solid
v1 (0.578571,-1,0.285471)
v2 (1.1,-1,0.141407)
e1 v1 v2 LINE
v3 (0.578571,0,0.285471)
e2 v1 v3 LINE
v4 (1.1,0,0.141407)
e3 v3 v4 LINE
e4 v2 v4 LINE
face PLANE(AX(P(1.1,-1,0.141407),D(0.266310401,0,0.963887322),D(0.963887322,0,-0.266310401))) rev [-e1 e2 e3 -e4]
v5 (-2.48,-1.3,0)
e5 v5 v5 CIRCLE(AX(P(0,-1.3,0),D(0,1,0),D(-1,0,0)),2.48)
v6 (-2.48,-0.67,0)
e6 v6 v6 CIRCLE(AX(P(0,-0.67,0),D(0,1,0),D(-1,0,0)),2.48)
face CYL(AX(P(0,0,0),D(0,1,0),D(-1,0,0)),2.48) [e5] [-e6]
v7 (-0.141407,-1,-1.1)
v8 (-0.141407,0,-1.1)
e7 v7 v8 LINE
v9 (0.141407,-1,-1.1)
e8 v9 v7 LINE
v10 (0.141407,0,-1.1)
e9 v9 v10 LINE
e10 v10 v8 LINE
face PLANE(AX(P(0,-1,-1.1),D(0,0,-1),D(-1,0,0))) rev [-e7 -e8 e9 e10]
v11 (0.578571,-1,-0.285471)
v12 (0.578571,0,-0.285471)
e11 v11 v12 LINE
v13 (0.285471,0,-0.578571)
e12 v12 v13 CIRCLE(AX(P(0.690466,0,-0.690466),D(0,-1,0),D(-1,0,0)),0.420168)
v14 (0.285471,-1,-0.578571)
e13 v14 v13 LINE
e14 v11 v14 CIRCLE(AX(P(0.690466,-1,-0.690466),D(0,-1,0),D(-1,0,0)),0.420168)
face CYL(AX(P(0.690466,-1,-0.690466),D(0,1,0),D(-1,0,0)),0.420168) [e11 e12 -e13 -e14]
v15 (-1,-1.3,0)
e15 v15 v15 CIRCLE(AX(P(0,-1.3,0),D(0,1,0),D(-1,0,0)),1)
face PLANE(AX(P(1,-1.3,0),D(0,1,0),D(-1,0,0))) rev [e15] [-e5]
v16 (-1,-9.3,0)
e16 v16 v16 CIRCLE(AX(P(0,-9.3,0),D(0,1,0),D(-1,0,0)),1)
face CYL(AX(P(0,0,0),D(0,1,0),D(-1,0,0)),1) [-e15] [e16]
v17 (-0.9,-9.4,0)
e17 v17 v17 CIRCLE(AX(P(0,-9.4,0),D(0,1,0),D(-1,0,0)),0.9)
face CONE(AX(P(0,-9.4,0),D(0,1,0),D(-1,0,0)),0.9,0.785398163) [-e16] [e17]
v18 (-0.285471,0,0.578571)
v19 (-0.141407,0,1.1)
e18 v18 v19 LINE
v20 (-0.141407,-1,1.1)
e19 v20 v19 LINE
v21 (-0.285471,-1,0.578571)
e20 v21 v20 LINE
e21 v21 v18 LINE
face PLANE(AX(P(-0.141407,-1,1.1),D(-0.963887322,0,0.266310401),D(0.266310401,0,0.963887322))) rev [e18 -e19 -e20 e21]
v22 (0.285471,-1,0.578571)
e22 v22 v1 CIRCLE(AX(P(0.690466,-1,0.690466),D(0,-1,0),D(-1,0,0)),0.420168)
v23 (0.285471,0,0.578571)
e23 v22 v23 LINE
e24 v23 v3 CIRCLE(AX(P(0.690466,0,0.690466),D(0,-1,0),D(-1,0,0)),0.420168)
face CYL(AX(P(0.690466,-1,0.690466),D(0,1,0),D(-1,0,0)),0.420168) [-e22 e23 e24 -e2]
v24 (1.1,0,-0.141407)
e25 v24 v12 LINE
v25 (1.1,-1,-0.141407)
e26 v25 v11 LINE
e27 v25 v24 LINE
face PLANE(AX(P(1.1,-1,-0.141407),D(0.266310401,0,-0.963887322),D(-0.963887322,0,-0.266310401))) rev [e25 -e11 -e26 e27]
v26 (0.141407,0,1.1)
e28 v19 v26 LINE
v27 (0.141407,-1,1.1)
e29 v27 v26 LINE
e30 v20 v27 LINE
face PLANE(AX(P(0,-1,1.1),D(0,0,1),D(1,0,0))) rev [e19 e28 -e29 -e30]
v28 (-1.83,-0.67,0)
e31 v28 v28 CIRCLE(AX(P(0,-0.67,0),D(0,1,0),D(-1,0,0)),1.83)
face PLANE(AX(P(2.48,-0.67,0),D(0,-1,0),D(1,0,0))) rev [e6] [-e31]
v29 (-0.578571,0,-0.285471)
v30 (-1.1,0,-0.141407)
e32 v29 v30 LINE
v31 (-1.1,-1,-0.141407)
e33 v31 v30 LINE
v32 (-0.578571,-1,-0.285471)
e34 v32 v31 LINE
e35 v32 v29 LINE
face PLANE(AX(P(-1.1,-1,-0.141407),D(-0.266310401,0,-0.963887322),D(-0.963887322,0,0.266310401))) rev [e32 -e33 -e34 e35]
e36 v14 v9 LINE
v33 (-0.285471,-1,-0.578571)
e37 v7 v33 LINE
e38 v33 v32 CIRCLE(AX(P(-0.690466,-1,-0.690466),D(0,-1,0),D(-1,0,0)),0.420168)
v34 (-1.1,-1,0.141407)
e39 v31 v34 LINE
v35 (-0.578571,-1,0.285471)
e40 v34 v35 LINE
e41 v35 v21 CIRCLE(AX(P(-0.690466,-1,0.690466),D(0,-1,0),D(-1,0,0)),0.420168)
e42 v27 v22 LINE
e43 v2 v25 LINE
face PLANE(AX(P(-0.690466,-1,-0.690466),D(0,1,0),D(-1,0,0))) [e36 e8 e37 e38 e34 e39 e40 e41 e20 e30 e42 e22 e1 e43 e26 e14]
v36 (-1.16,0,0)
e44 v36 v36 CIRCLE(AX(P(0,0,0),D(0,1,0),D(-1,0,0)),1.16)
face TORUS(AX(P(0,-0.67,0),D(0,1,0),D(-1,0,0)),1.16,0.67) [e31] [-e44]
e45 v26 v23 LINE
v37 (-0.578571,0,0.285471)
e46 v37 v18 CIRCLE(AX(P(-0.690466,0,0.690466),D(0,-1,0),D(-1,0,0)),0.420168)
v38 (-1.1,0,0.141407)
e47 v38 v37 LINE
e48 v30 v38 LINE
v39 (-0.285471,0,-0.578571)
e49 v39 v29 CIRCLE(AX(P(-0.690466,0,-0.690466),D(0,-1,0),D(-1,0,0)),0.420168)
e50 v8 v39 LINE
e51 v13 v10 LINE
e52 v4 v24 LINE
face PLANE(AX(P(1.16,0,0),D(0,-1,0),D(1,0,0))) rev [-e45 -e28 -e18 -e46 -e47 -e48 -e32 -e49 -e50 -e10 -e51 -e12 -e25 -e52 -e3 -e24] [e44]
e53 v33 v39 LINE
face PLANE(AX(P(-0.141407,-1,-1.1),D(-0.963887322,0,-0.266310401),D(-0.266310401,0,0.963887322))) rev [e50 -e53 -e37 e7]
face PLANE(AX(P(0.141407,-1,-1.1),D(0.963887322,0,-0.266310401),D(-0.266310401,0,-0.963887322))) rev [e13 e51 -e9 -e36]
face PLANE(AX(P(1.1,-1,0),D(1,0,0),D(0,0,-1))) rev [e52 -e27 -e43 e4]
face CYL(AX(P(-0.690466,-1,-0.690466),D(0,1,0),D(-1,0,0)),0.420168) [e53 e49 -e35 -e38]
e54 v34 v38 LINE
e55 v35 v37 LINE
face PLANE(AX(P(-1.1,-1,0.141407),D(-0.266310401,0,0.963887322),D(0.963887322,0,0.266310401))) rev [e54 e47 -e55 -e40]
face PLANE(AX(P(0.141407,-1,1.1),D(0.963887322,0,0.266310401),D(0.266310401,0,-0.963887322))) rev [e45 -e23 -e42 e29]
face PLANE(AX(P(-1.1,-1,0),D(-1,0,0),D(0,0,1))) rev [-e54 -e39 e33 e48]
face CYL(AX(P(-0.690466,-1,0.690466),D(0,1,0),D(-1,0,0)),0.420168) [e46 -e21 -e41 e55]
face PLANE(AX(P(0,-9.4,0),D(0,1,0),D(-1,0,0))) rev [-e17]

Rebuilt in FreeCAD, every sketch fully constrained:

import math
import FreeCAD as App
import Part
import Sketcher

V = App.Vector
Q = App.Units.Quantity

doc = App.newDocument("Part")
body = doc.addObject("PartDesign::Body", "Body")

# Sketch on XY plane
sketch1 = body.newObject("Sketcher::SketchObject", "Sketch")
sketch1.AttachmentSupport = (doc.getObject("XY_Plane"), [""])
sketch1.MapMode = "FlatFace"
sketch1.addGeometry(Part.LineSegment(V(0, -9.4, 0), V(0.9, -9.4, 0)), False)
sketch1.addGeometry(Part.LineSegment(V(0.9, -9.4, 0), V(1, -9.3, 0)), False)
sketch1.addGeometry(Part.LineSegment(V(1, -9.3, 0), V(1, -1.3, 0)), False)
sketch1.addGeometry(Part.LineSegment(V(1, -1.3, 0), V(2.48, -1.3, 0)), False)
sketch1.addGeometry(Part.LineSegment(V(2.48, -1.3, 0), V(2.48, -0.67, 0)), False)
sketch1.addGeometry(Part.LineSegment(V(2.48, -0.67, 0), V(1.83, -0.67, 0)), False)
sketch1.addGeometry(Part.ArcOfCircle(Part.Circle(V(1.16, -0.67, 0), V(0, 0, 1), 0.67), math.radians(0), math.radians(90)), False)
sketch1.addGeometry(Part.LineSegment(V(1.16, 0, 0), V(0, 0, 0)), False)
sketch1.addGeometry(Part.LineSegment(V(0, 0, 0), V(0, -9.4, 0)), False)
sketch1.addConstraint(Sketcher.Constraint("Coincident", 0, 2, 1, 1))
sketch1.addConstraint(Sketcher.Constraint("Coincident", 1, 2, 2, 1))
sketch1.addConstraint(Sketcher.Constraint("Coincident", 2, 2, 3, 1))
sketch1.addConstraint(Sketcher.Constraint("Coincident", 3, 2, 4, 1))
sketch1.addConstraint(Sketcher.Constraint("Coincident", 4, 2, 5, 1))
sketch1.addConstraint(Sketcher.Constraint("Coincident", 5, 2, 6, 1))
sketch1.addConstraint(Sketcher.Constraint("Tangent", 6, 2, 7, 1))
sketch1.addConstraint(Sketcher.Constraint("Coincident", 7, 2, 8, 1))
sketch1.addConstraint(Sketcher.Constraint("Coincident", 8, 2, 0, 1))
sketch1.addConstraint(Sketcher.Constraint("Horizontal", 0))
sketch1.addConstraint(Sketcher.Constraint("Vertical", 2))
sketch1.addConstraint(Sketcher.Constraint("Horizontal", 3))
sketch1.addConstraint(Sketcher.Constraint("Vertical", 4))
sketch1.addConstraint(Sketcher.Constraint("Horizontal", 5))
sketch1.addConstraint(Sketcher.Constraint("Horizontal", 7))
sketch1.addConstraint(Sketcher.Constraint("Vertical", 8))
sketch1.addConstraint(Sketcher.Constraint("Coincident", 7, 2, -1, 1))
sketch1.addConstraint(Sketcher.Constraint("Horizontal", 6, 3, 4, 2))
sketch1.addConstraint(Sketcher.Constraint("DistanceY", 2, 1, 2, 2, Q("8 mm")))
sketch1.addConstraint(Sketcher.Constraint("Angle", 1, Q("45 deg")))
sketch1.addConstraint(Sketcher.Constraint("Radius", 6, Q("0.67 mm")))
sketch1.addConstraint(Sketcher.Constraint("DistanceX", 0, 1, 0, 2, Q("0.9 mm")))
sketch1.addConstraint(Sketcher.Constraint("DistanceY", 8, 2, 8, 1, Q("9.4 mm")))
sketch1.addConstraint(Sketcher.Constraint("DistanceX", -1, 1, 1, 2, Q("1 mm")))
sketch1.addConstraint(Sketcher.Constraint("DistanceX", 3, 1, 3, 2, Q("1.48 mm")))
sketch1.addConstraint(Sketcher.Constraint("DistanceX", 5, 2, 5, 1, Q("0.65 mm")))
revolution = body.newObject("PartDesign::Revolution", "Revolution")
revolution.Profile = sketch1
revolution.ReferenceAxis = (sketch1, ["V_Axis"])
revolution.Angle = 360

# Sketch on XZ plane
sketch2 = body.newObject("Sketcher::SketchObject", "Sketch001")
sketch2.AttachmentSupport = (doc.getObject("XZ_Plane"), [""])
sketch2.MapMode = "FlatFace"
sketch2.addGeometry(Part.LineSegment(V(0.285471, -0.578571, 0), V(0.141407, -1.1, 0)), False)
sketch2.addGeometry(Part.LineSegment(V(0.141407, -1.1, 0), V(-0.141407, -1.1, 0)), False)
sketch2.addGeometry(Part.LineSegment(V(-0.141407, -1.1, 0), V(-0.285471, -0.578571, 0)), False)
sketch2.addGeometry(Part.ArcOfCircle(Part.Circle(V(-0.690466, -0.690466, 0), V(0, 0, 1), 0.420168), math.radians(15.444832), math.radians(74.555168)), False)
sketch2.addGeometry(Part.LineSegment(V(-0.578571, -0.285471, 0), V(-1.1, -0.141407, 0)), False)
sketch2.addGeometry(Part.LineSegment(V(-1.1, -0.141407, 0), V(-1.1, 0.141407, 0)), False)
sketch2.addGeometry(Part.LineSegment(V(-1.1, 0.141407, 0), V(-0.578571, 0.285471, 0)), False)
sketch2.addGeometry(Part.ArcOfCircle(Part.Circle(V(-0.690466, 0.690466, 0), V(0, 0, 1), 0.420168), math.radians(-74.555168), math.radians(-15.444832)), False)
sketch2.addGeometry(Part.LineSegment(V(-0.285471, 0.578571, 0), V(-0.141407, 1.1, 0)), False)
sketch2.addGeometry(Part.LineSegment(V(-0.141407, 1.1, 0), V(0.141407, 1.1, 0)), False)
sketch2.addGeometry(Part.LineSegment(V(0.141407, 1.1, 0), V(0.285471, 0.578571, 0)), False)
sketch2.addGeometry(Part.ArcOfCircle(Part.Circle(V(0.690466, 0.690466, 0), V(0, 0, 1), 0.420168), math.radians(-164.555168), math.radians(-105.444832)), False)
sketch2.addGeometry(Part.LineSegment(V(0.578571, 0.285471, 0), V(1.1, 0.141407, 0)), False)
sketch2.addGeometry(Part.LineSegment(V(1.1, 0.141407, 0), V(1.1, -0.141407, 0)), False)
sketch2.addGeometry(Part.LineSegment(V(1.1, -0.141407, 0), V(0.578571, -0.285471, 0)), False)
sketch2.addGeometry(Part.ArcOfCircle(Part.Circle(V(0.690466, -0.690466, 0), V(0, 0, 1), 0.420168), math.radians(105.444832), math.radians(164.555168)), False)
sketch2.addConstraint(Sketcher.Constraint("Coincident", 0, 2, 1, 1))
sketch2.addConstraint(Sketcher.Constraint("Coincident", 1, 2, 2, 1))
sketch2.addConstraint(Sketcher.Constraint("Tangent", 2, 2, 3, 1))
sketch2.addConstraint(Sketcher.Constraint("Tangent", 3, 2, 4, 1))
sketch2.addConstraint(Sketcher.Constraint("Coincident", 4, 2, 5, 1))
sketch2.addConstraint(Sketcher.Constraint("Coincident", 5, 2, 6, 1))
sketch2.addConstraint(Sketcher.Constraint("Tangent", 6, 2, 7, 1))
sketch2.addConstraint(Sketcher.Constraint("Tangent", 7, 2, 8, 1))
sketch2.addConstraint(Sketcher.Constraint("Coincident", 8, 2, 9, 1))
sketch2.addConstraint(Sketcher.Constraint("Coincident", 9, 2, 10, 1))
sketch2.addConstraint(Sketcher.Constraint("Tangent", 10, 2, 11, 1))
sketch2.addConstraint(Sketcher.Constraint("Tangent", 11, 2, 12, 1))
sketch2.addConstraint(Sketcher.Constraint("Coincident", 12, 2, 13, 1))
sketch2.addConstraint(Sketcher.Constraint("Coincident", 13, 2, 14, 1))
sketch2.addConstraint(Sketcher.Constraint("Tangent", 14, 2, 15, 1))
sketch2.addConstraint(Sketcher.Constraint("Tangent", 15, 2, 0, 1))
sketch2.addConstraint(Sketcher.Constraint("Horizontal", 1))
sketch2.addConstraint(Sketcher.Constraint("Vertical", 5))
sketch2.addConstraint(Sketcher.Constraint("Horizontal", 9))
sketch2.addConstraint(Sketcher.Constraint("Vertical", 13))
sketch2.addConstraint(Sketcher.Constraint("Equal", 3, 7))
sketch2.addConstraint(Sketcher.Constraint("Equal", 7, 11))
sketch2.addConstraint(Sketcher.Constraint("Equal", 11, 15))
sketch2.addConstraint(Sketcher.Constraint("Symmetric", 3, 3, 11, 3, -1, 1))
sketch2.addConstraint(Sketcher.Constraint("Symmetric", 7, 3, 15, 3, -1, 1))
sketch2.addConstraint(Sketcher.Constraint("Symmetric", 0, 2, 8, 2, -1, 1))
sketch2.addConstraint(Sketcher.Constraint("Symmetric", 4, 2, 12, 2, -1, 1))
sketch2.addConstraint(Sketcher.Constraint("Symmetric", 7, 3, 11, 3, -2))
sketch2.addConstraint(Sketcher.Constraint("Perpendicular", 0, 4))
sketch2.addConstraint(Sketcher.Constraint("Perpendicular", 2, 6))
sketch2.addConstraint(Sketcher.Constraint("Perpendicular", 6, 10))
sketch2.addConstraint(Sketcher.Constraint("Perpendicular", 10, 14))
sketch2.addConstraint(Sketcher.Constraint("Horizontal", 7, 2, 10, 2))
sketch2.addConstraint(Sketcher.Constraint("Equal", 9, 5))
sketch2.addConstraint(Sketcher.Constraint("Equal", 2, 4))
sketch2.addConstraint(Sketcher.Constraint("DistanceY", 0, 2, -1, 1, Q("1.1 mm")))
sketch2.addConstraint(Sketcher.Constraint("Radius", 3, Q("0.420168 mm")))
sketch2.addConstraint(Sketcher.Constraint("DistanceX", 3, 2, 2, 2, Q("0.293099 mm")))
sketch2.addConstraint(Sketcher.Constraint("DistanceX", 1, 2, 1, 1, Q("0.282814 mm")))
pocket1 = body.newObject("PartDesign::Pocket", "Pocket")
pocket1.Profile = sketch2
pocket1.Length = 1
pocket1.Reversed = True

doc.recompute()
